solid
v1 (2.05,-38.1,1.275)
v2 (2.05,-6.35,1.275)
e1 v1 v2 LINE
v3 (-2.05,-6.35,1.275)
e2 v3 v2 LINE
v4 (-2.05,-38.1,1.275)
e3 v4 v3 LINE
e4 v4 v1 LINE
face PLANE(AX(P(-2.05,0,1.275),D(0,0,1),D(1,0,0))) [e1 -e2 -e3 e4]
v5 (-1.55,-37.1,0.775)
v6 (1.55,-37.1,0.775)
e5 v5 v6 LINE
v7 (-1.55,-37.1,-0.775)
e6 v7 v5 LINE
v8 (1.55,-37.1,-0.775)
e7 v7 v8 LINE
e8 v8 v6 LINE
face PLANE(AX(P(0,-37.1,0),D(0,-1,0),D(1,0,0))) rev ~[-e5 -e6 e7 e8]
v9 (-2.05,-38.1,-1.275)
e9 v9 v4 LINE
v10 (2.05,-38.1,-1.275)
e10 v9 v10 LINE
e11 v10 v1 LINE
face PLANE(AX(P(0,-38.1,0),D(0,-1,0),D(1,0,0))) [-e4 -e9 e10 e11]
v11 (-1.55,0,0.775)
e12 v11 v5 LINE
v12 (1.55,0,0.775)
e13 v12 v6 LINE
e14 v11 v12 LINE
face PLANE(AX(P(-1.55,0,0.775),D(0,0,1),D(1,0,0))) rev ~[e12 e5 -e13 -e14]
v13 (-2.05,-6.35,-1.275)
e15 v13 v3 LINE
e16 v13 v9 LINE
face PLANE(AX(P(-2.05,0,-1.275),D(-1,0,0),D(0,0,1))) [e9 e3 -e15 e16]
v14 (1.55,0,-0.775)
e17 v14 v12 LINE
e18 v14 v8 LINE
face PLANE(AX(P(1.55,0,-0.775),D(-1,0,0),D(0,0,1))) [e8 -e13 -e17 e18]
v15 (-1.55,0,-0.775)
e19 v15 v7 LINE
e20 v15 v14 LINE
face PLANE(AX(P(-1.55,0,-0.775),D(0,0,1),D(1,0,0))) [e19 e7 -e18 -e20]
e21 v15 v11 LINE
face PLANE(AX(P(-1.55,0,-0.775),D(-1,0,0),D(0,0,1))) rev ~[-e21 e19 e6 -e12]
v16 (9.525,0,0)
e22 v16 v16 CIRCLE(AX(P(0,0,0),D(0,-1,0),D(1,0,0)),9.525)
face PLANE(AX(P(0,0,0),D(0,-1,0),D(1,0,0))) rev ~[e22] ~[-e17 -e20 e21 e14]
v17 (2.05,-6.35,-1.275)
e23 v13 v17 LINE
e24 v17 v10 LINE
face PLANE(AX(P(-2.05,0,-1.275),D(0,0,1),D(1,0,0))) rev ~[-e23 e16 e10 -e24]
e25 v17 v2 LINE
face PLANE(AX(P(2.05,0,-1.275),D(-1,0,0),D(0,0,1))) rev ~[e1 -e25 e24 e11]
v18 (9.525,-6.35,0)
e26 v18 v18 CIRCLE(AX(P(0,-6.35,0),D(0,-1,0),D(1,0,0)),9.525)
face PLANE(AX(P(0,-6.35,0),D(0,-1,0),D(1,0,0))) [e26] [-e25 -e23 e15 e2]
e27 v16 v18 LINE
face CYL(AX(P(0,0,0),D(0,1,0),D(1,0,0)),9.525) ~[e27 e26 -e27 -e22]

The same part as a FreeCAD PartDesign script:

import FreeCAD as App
import Part
import Sketcher

V = App.Vector
Q = App.Units.Quantity

doc = App.newDocument("Part")
body = doc.addObject("PartDesign::Body", "Body")

# Sketch on XZ plane
sketch1 = body.newObject("Sketcher::SketchObject", "Sketch")
sketch1.AttachmentSupport = (doc.getObject("XZ_Plane"), [""])
sketch1.MapMode = "FlatFace"
sketch1.addGeometry([
    Part.LineSegment(V(-2, 1.3, 0), V(-2, -1.3, 0)),  # 0
    Part.LineSegment(V(-2, -1.3, 0), V(2, -1.3, 0)),  # 1
    Part.LineSegment(V(2, -1.3, 0), V(2, 1.3, 0)),  # 2
    Part.LineSegment(V(2, 1.3, 0), V(-2, 1.3, 0)),  # 3
    Part.LineSegment(V(1.6, -0.8, 0), V(-1.6, -0.8, 0)),  # 4
    Part.LineSegment(V(-1.6, -0.8, 0), V(-1.6, 0.8, 0)),  # 5
    Part.LineSegment(V(-1.6, 0.8, 0), V(1.6, 0.8, 0)),  # 6
    Part.LineSegment(V(1.6, 0.8, 0), V(1.6, -0.8, 0)),  # 7
], False)
sketch1.addConstraint([
    Sketcher.Constraint("Coincident", 0, 2, 1, 1),
    Sketcher.Constraint("Coincident", 1, 2, 2, 1),
    Sketcher.Constraint("Coincident", 2, 2, 3, 1),
    Sketcher.Constraint("Coincident", 3, 2, 0, 1),
    Sketcher.Constraint("Coincident", 4, 2, 5, 1),
    Sketcher.Constraint("Coincident", 5, 2, 6, 1),
    Sketcher.Constraint("Coincident", 6, 2, 7, 1),
    Sketcher.Constraint("Coincident", 7, 2, 4, 1),
    Sketcher.Constraint("Vertical", 0),
    Sketcher.Constraint("Horizontal", 1),
    Sketcher.Constraint("Vertical", 2),
    Sketcher.Constraint("Horizontal", 3),
    Sketcher.Constraint("Horizontal", 4),
    Sketcher.Constraint("Vertical", 5),
    Sketcher.Constraint("Horizontal", 6),
    Sketcher.Constraint("Vertical", 7),
    Sketcher.Constraint("Symmetric", 0, 2, 2, 2, -1, 1),
    Sketcher.Constraint("Symmetric", 4, 2, 6, 2, -1, 1),
    Sketcher.Constraint("DistanceX", 1, 1, 1, 2, Q("4.1 mm")),
    Sketcher.Constraint("DistanceX", 4, 2, 4, 1, Q("3.1 mm")),
    Sketcher.Constraint("DistanceY", 0, 2, 0, 1, Q("2.55 mm")),
    Sketcher.Constraint("DistanceY", 5, 1, 5, 2, Q("1.55 mm")),
])
pad1 = body.newObject("PartDesign::Pad", "Pad")
pad1.Profile = sketch1
pad1.Length = 38.1

# Sketch on XZ plane
sketch2 = body.newObject("Sketcher::SketchObject", "Sketch001")
sketch2.AttachmentSupport = (doc.getObject("XZ_Plane"), [""])
sketch2.MapMode = "FlatFace"
sketch2.addGeometry([
    Part.Circle(V(0, 0, 0), V(0, 0, 1), 9.5),  # 0
    Part.LineSegment(V(2, -1.3, 0), V(-2, -1.3, 0)),  # 1
    Part.LineSegment(V(-2, -1.3, 0), V(-2, 1.3, 0)),  # 2
    Part.LineSegment(V(-2, 1.3, 0), V(2, 1.3, 0)),  # 3
    Part.LineSegment(V(2, 1.3, 0), V(2, -1.3, 0)),  # 4
], False)
sketch2.addConstraint([
    Sketcher.Constraint("Coincident", 1, 2, 2, 1),
    Sketcher.Constraint("Coincident", 2, 2, 3, 1),
    Sketcher.Constraint("Coincident", 3, 2, 4, 1),
    Sketcher.Constraint("Coincident", 4, 2, 1, 1),
    Sketcher.Constraint("Horizontal", 1),
    Sketcher.Constraint("Vertical", 2),
    Sketcher.Constraint("Horizontal", 3),
    Sketcher.Constraint("Vertical", 4),
    Sketcher.Constraint("Coincident", 0, 3, -1, 1),
    Sketcher.Constraint("Symmetric", 1, 2, 3, 2, -1, 1),
    Sketcher.Constraint("Diameter", 0, Q("19.05 mm")),
    Sketcher.Constraint("DistanceX", 1, 2, 1, 1, Q("4.1 mm")),
    Sketcher.Constraint("DistanceY", 2, 1, 2, 2, Q("2.55 mm")),
])
pad2 = body.newObject("PartDesign::Pad", "Pad001")
pad2.Profile = sketch2
pad2.Length = 6.35

# Sketch on XZ plane
sketch3 = body.newObject("Sketcher::SketchObject", "Sketch002")
sketch3.AttachmentSupport = (doc.getObject("XZ_Plane"), [""])
sketch3.MapMode = "FlatFace"
sketch3.AttachmentOffset = App.Placement(V(0, 0, 38.1), App.Rotation())
sketch3.addGeometry([
    Part.LineSegment(V(-2, 1.3, 0), V(-2, -1.3, 0)),
    Part.LineSegment(V(-2, -1.3, 0), V(2, -1.3, 0)),
    Part.LineSegment(V(2, -1.3, 0), V(2, 1.3, 0)),
    Part.LineSegment(V(2, 1.3, 0), V(-2, 1.3, 0)),
], False)
sketch3.addConstraint([
    Sketcher.Constraint("Coincident", 0, 2, 1, 1),
    Sketcher.Constraint("Coincident", 1, 2, 2, 1),
    Sketcher.Constraint("Coincident", 2, 2, 3, 1),
    Sketcher.Constraint("Coincident", 3, 2, 0, 1),
    Sketcher.Constraint("Vertical", 0),
    Sketcher.Constraint("Horizontal", 1),
    Sketcher.Constraint("Vertical", 2),
    Sketcher.Constraint("Horizontal", 3),
    Sketcher.Constraint("Symmetric", 0, 2, 2, 2, -1, 1),
    Sketcher.Constraint("DistanceX", 1, 1, 1, 2, Q("4.1 mm")),
    Sketcher.Constraint("DistanceY", 0, 2, 0, 1, Q("2.55 mm")),
])
pad3 = body.newObject("PartDesign::Pad", "Pad002")
pad3.Profile = sketch3
pad3.Length = 1
pad3.Reversed = True

doc.recompute()
